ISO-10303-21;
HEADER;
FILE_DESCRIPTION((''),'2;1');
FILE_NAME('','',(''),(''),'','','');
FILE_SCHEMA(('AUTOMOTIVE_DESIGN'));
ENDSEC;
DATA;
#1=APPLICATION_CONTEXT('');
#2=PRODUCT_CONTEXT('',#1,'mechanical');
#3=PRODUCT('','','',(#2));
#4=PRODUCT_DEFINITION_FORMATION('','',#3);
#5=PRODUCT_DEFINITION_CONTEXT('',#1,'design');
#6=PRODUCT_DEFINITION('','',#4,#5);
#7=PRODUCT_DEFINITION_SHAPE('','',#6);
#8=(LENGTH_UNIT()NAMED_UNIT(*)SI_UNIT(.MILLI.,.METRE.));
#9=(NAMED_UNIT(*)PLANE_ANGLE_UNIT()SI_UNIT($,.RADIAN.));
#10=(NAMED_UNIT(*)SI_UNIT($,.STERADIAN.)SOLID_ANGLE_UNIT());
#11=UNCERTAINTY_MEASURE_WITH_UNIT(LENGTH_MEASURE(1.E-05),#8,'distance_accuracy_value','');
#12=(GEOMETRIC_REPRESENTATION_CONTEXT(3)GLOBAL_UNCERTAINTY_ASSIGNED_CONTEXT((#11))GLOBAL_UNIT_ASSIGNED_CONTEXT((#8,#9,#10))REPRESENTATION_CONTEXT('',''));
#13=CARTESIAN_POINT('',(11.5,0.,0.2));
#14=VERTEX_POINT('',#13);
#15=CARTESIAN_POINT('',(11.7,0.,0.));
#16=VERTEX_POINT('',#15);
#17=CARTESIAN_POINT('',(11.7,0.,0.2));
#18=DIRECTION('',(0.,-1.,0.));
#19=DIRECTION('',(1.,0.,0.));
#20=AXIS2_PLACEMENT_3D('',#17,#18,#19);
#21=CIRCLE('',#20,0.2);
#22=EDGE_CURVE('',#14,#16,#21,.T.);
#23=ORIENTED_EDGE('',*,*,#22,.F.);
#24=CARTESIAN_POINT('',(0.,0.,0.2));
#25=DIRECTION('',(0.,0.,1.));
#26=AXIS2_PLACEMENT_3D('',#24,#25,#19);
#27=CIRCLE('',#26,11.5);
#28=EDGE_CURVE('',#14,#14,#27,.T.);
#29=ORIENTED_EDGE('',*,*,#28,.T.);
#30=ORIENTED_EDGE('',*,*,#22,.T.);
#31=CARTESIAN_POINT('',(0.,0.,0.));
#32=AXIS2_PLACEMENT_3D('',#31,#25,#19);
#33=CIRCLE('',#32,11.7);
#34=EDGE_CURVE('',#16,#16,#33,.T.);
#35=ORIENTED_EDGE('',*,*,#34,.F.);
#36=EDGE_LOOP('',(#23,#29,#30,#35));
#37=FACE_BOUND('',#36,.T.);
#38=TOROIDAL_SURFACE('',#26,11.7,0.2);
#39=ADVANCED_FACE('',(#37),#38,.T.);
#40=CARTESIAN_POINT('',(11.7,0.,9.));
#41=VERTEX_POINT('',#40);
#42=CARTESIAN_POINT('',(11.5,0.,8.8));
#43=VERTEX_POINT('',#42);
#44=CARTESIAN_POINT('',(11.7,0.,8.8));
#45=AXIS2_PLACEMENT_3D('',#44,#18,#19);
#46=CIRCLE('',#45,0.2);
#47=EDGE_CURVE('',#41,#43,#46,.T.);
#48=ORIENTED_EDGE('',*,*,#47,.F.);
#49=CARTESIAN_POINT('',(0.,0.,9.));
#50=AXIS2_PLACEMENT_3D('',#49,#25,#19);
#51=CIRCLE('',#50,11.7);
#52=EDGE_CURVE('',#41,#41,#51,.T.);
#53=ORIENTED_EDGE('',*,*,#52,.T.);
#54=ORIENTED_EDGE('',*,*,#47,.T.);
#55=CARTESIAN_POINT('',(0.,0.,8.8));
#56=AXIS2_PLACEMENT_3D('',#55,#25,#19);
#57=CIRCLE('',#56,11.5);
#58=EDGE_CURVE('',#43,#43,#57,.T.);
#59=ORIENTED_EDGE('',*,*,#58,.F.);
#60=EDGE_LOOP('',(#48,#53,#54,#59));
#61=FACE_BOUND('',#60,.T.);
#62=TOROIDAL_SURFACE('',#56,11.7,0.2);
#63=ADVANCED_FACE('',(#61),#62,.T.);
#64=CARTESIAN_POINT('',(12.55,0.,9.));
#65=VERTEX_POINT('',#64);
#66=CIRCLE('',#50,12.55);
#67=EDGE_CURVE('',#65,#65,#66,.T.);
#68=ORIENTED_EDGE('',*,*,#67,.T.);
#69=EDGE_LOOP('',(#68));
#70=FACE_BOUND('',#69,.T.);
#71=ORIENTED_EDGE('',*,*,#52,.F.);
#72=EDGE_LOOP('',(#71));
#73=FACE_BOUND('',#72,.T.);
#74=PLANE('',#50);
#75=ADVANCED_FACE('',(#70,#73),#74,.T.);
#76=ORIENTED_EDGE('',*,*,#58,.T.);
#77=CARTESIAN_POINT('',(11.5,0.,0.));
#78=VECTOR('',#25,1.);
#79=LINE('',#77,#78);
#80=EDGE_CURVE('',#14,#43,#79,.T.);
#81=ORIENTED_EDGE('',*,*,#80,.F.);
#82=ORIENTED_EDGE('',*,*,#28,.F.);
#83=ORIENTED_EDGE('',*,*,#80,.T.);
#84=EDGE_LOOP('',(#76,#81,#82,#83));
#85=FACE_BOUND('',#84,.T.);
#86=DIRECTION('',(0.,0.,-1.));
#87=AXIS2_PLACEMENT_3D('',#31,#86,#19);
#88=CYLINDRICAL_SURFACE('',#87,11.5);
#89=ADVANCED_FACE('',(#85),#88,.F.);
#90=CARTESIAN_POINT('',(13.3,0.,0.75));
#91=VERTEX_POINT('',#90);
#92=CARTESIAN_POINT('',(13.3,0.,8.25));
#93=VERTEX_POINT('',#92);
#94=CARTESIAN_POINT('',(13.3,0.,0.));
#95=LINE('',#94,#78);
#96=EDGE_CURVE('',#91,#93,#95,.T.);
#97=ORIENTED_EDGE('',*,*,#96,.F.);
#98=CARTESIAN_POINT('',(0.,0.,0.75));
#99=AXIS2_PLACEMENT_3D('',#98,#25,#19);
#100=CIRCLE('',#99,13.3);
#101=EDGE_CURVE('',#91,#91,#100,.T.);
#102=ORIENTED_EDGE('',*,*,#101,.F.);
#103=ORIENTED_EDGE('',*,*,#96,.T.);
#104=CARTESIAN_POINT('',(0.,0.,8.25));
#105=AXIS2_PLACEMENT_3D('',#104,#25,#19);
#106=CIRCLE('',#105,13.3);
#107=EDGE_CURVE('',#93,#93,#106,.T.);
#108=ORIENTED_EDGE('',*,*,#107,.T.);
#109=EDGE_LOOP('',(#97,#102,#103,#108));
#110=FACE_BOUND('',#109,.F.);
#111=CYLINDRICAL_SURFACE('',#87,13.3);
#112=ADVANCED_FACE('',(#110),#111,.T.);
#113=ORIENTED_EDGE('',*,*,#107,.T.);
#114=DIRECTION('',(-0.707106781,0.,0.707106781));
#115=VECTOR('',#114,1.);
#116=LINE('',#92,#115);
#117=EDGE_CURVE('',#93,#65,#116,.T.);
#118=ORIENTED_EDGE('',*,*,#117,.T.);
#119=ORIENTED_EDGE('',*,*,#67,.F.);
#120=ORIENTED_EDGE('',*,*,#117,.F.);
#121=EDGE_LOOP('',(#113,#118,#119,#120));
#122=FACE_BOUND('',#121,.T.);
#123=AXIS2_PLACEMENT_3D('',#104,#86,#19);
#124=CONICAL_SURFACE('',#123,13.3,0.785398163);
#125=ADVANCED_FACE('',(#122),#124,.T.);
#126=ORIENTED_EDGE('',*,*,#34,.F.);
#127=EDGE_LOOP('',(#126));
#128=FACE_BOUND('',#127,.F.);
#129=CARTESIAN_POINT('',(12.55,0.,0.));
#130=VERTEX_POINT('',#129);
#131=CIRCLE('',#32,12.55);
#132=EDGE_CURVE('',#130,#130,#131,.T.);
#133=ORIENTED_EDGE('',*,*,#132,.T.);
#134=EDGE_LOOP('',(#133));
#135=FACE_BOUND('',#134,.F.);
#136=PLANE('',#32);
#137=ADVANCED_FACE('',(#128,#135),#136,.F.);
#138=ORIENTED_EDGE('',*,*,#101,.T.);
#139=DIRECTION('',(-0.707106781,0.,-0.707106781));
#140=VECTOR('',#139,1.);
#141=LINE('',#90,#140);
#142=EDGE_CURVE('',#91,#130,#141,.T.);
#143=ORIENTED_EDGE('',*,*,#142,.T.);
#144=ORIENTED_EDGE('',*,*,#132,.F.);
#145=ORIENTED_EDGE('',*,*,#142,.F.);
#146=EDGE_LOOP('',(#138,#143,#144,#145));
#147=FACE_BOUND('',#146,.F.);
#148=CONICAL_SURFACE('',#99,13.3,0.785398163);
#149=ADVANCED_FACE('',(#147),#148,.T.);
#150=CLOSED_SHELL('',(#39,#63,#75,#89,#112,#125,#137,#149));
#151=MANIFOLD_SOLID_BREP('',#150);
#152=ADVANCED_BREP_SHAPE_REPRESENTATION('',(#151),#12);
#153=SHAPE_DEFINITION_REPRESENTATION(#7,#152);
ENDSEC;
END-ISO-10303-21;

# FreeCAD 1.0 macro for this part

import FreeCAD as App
import Part
import Sketcher

V = App.Vector
Q = App.Units.Quantity


def edges_at(feature, points):
    """Names of the edges that pass closest to the given points."""
    edges = feature.Shape.Edges
    near = lambda p: min(range(len(edges)), key=lambda i: edges[i].distToShape(Part.Vertex(*p))[0])
    return sorted({f"Edge{near(p) + 1}" for p in points})

doc = App.newDocument("Part")
body = doc.addObject("PartDesign::Body", "Body")

# Sketch on XY plane
sketch1 = body.newObject("Sketcher::SketchObject", "Sketch")
sketch1.AttachmentSupport = (doc.getObject("XY_Plane"), [""])
sketch1.MapMode = "FlatFace"
sketch1.addGeometry([
    Part.Circle(V(0, 0, 0), V(0, 0, 1), 13.3),
    Part.Circle(V(0, 0, 0), V(0, 0, 1), 11.5),
], False)
sketch1.addConstraint([
    Sketcher.Constraint("Coincident", 0, 3, -1, 1),
    Sketcher.Constraint("Coincident", 1, 3, -1, 1),
    Sketcher.Constraint("Diameter", 1, Q("23 mm")),
    Sketcher.Constraint("Diameter", 0, Q("26.6 mm")),
])
pad1 = body.newObject("PartDesign::Pad", "Pad")
pad1.Profile = sketch1
pad1.Length = 9
doc.recompute()

chamfer = body.newObject("PartDesign::Chamfer", "Chamfer")
chamfer.Base = (pad1, edges_at(pad1, [(-13.3, 0, 9), (-13.3, 0, 0)]))
chamfer.Size = 0.75
doc.recompute()

fillet = body.newObject("PartDesign::Fillet", "Fillet")
fillet.Base = (chamfer, edges_at(chamfer, [(-11.5, 0, 9)]))
fillet.Radius = 0.2
doc.recompute()

fillet2 = body.newObject("PartDesign::Fillet", "Fillet001")
fillet2.Base = (fillet, edges_at(fillet, [(11.5, 0, 4.4), (-11.5, 0, 8.8), (-11.5, 0, 0)]))
fillet2.Radius = 0.2

doc.recompute()
